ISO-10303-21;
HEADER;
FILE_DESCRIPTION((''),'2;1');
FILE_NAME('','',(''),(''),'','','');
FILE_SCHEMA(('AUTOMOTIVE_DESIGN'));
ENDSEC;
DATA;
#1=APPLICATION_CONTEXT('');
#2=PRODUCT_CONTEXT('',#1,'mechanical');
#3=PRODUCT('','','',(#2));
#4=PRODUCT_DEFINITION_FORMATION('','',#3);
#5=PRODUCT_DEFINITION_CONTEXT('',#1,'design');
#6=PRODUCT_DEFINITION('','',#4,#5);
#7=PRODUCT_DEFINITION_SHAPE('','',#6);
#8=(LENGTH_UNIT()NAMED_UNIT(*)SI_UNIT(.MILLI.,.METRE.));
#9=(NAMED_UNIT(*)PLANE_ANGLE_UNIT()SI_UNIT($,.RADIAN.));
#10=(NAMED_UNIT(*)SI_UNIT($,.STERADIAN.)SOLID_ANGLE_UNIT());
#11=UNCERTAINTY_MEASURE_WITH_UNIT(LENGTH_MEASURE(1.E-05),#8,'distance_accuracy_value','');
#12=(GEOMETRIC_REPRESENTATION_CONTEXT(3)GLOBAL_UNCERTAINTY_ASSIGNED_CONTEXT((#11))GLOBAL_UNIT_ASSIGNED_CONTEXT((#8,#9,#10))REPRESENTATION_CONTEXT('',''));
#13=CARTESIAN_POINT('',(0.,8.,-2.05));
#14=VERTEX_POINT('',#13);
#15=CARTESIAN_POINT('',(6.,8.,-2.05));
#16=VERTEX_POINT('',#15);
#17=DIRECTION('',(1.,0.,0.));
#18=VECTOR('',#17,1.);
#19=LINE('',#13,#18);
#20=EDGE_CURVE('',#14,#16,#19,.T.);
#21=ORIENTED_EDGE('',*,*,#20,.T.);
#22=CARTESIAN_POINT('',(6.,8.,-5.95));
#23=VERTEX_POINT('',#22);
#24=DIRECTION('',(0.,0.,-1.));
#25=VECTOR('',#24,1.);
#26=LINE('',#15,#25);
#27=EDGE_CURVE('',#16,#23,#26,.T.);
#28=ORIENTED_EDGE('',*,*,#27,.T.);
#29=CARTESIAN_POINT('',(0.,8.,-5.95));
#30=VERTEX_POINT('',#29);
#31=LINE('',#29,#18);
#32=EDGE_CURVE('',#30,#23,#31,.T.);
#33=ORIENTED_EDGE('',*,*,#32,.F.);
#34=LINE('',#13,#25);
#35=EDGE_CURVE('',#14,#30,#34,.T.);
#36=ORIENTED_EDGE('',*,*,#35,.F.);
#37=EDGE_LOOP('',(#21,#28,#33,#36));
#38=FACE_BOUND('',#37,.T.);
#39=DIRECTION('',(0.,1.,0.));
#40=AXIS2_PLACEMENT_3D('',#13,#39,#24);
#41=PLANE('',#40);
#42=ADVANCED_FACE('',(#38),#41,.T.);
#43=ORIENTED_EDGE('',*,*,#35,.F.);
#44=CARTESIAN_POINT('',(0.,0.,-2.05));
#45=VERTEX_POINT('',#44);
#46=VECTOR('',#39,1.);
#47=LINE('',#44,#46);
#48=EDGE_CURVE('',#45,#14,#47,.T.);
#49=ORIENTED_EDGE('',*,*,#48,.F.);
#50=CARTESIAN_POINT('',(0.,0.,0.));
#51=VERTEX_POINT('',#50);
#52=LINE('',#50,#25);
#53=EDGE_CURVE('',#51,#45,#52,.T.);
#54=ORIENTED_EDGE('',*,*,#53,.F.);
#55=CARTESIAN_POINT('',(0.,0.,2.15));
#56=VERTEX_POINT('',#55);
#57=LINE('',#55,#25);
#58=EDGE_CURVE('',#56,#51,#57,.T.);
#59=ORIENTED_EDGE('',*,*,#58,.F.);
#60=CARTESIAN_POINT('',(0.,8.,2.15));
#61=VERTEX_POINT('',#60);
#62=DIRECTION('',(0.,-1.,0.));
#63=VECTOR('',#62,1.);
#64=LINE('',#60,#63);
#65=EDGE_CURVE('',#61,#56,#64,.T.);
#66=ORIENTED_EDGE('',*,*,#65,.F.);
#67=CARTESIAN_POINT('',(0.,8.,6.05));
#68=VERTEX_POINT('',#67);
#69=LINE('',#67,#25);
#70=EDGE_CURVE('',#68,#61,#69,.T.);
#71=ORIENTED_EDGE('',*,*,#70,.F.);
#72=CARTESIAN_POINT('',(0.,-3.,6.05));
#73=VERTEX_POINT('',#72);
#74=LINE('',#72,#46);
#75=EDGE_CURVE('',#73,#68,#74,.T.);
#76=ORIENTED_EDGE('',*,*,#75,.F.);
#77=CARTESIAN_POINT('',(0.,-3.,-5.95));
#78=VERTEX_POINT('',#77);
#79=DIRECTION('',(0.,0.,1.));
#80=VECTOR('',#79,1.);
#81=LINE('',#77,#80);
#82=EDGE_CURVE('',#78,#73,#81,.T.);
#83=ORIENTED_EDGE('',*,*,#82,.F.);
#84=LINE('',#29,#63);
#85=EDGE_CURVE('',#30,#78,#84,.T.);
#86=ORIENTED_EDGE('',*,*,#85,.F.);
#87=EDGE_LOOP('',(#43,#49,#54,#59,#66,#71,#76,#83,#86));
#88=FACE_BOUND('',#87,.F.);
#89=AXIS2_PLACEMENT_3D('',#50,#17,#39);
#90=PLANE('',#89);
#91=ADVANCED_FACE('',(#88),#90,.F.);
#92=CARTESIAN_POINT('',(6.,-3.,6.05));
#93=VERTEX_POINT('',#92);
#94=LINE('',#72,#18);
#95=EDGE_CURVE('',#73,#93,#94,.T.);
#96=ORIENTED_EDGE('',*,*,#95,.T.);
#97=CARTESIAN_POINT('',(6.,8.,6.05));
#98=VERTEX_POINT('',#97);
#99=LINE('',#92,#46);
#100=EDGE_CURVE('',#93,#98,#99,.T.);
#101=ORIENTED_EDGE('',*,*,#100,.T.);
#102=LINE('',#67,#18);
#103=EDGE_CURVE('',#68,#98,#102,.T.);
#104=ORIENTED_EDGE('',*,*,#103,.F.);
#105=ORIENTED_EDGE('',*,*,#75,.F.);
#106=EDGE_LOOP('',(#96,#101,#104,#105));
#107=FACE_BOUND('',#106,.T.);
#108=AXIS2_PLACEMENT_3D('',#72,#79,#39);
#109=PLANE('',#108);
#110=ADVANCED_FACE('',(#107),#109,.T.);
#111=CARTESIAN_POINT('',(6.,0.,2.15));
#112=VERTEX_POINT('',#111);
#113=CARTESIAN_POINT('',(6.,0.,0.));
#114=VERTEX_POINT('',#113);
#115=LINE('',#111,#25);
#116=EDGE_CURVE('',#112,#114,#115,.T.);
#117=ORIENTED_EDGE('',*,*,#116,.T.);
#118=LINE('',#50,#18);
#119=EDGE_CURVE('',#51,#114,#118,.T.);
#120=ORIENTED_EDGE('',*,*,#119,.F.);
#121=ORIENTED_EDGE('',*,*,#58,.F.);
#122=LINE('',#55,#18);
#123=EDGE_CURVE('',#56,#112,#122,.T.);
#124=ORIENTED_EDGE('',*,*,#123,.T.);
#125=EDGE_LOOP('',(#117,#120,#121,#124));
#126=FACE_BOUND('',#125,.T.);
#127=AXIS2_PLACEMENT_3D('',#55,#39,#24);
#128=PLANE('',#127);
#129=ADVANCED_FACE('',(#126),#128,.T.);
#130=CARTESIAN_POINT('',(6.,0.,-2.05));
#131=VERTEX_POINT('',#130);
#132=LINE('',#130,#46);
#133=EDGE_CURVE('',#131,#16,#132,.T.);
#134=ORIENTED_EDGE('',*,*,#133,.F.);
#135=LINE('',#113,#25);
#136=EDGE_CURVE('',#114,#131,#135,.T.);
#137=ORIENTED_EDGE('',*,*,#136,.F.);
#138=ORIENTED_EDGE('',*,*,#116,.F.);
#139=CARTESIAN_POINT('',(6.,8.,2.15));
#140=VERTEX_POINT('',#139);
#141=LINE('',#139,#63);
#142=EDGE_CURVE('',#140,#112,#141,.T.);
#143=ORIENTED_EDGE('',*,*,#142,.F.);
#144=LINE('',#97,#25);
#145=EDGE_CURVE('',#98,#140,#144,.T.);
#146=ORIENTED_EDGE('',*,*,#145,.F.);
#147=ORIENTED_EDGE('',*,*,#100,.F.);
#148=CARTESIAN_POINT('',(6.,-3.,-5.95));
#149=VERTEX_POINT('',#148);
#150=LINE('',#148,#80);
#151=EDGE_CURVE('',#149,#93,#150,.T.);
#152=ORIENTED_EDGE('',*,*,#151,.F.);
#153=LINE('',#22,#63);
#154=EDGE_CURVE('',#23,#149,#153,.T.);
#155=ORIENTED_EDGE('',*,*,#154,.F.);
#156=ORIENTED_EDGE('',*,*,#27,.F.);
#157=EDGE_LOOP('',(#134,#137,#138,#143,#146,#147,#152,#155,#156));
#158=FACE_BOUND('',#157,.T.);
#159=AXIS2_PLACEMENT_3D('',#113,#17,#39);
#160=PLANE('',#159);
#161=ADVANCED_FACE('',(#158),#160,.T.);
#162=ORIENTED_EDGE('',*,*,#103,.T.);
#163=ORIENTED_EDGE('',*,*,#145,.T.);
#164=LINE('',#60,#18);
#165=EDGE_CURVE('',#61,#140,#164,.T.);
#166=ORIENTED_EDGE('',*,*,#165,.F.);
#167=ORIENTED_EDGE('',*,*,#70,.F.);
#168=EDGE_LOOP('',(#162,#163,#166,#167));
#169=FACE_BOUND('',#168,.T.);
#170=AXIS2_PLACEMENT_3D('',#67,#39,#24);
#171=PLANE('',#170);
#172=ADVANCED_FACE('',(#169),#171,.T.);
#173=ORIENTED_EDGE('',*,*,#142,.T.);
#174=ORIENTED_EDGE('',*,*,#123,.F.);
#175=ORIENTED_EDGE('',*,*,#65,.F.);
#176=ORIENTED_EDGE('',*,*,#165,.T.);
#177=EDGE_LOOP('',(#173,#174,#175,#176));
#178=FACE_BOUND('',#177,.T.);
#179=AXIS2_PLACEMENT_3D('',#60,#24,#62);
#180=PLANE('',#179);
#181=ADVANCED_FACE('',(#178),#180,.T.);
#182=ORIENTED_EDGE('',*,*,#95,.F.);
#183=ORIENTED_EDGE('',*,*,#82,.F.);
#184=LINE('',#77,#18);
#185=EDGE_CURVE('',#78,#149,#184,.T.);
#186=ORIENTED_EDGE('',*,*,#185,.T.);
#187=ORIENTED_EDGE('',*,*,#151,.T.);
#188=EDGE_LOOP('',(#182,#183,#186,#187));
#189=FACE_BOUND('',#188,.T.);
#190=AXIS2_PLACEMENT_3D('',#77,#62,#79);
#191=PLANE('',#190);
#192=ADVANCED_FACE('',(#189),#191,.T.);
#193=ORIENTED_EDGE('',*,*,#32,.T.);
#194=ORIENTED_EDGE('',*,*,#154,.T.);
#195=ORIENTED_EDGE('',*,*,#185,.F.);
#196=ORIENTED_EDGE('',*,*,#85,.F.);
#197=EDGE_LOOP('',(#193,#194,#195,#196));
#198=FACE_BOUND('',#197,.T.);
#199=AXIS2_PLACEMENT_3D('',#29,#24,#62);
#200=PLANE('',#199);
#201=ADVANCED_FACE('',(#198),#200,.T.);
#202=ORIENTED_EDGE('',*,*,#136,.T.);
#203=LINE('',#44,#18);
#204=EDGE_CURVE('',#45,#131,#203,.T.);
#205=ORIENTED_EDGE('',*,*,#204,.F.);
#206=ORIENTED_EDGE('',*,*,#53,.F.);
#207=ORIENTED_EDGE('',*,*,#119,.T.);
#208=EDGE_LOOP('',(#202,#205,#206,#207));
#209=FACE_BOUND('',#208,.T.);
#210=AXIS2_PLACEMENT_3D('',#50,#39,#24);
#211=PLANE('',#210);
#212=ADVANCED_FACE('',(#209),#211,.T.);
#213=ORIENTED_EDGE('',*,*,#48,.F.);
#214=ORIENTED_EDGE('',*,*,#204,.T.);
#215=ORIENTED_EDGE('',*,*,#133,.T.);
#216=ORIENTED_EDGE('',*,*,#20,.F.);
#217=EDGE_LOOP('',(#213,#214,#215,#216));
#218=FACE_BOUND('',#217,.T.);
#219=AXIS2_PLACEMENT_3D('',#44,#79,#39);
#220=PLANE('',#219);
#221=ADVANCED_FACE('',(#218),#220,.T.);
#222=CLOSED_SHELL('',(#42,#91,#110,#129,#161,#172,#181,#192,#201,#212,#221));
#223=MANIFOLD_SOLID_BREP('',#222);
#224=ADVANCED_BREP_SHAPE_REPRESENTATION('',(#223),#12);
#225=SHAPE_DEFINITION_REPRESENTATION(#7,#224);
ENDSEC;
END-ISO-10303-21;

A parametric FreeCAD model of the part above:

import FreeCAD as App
import Part
import Sketcher
from FreeCAD import Vector

doc = App.newDocument("Part")
params = doc.addObject("Spreadsheet::Sheet", "Params")
for row, (alias, value) in enumerate([
    ("sketch1_width", "8 mm"),
    ("sketch1_width2", "11 mm"),
    ("sketch1_height", "12 mm"),
    ("sketch1_height2", "3.9 mm"),
    ("pad1_length", "6 mm"),
], start=1):
    params.set(f"A{row}", alias)
    params.set(f"B{row}", "=" + value)
    params.setAlias(f"B{row}", alias)

body = doc.addObject("PartDesign::Body", "Body")

sketch1 = body.newObject("Sketcher::SketchObject", "Sketch")
sketch1.AttachmentSupport = (doc.getObject("YZ_Plane"), [""])
sketch1.MapMode = "FlatFace"
sketch1.addGeometry(Part.LineSegment(Vector(0, -2.05, 0), Vector(0, 2.15, 0)), False)
sketch1.addGeometry(Part.LineSegment(Vector(0, 2.15, 0), Vector(8, 2.15, 0)), False)
sketch1.addGeometry(Part.LineSegment(Vector(8, 2.15, 0), Vector(8, 6.05, 0)), False)
sketch1.addGeometry(Part.LineSegment(Vector(8, 6.05, 0), Vector(-3, 6.05, 0)), False)
sketch1.addGeometry(Part.LineSegment(Vector(-3, 6.05, 0), Vector(-3, -5.95, 0)), False)
sketch1.addGeometry(Part.LineSegment(Vector(-3, -5.95, 0), Vector(8, -5.95, 0)), False)
sketch1.addGeometry(Part.LineSegment(Vector(8, -5.95, 0), Vector(8, -2.05, 0)), False)
sketch1.addGeometry(Part.LineSegment(Vector(8, -2.05, 0), Vector(0, -2.05, 0)), False)
sketch1.addConstraint(Sketcher.Constraint("Coincident", 0, 2, 1, 1))
sketch1.addConstraint(Sketcher.Constraint("Coincident", 1, 2, 2, 1))
sketch1.addConstraint(Sketcher.Constraint("Coincident", 2, 2, 3, 1))
sketch1.addConstraint(Sketcher.Constraint("Coincident", 3, 2, 4, 1))
sketch1.addConstraint(Sketcher.Constraint("Coincident", 4, 2, 5, 1))
sketch1.addConstraint(Sketcher.Constraint("Coincident", 5, 2, 6, 1))
sketch1.addConstraint(Sketcher.Constraint("Coincident", 6, 2, 7, 1))
sketch1.addConstraint(Sketcher.Constraint("Coincident", 7, 2, 0, 1))
sketch1.addConstraint(Sketcher.Constraint("Vertical", 0))
sketch1.addConstraint(Sketcher.Constraint("Horizontal", 1))
sketch1.addConstraint(Sketcher.Constraint("Vertical", 2))
sketch1.addConstraint(Sketcher.Constraint("Horizontal", 3))
sketch1.addConstraint(Sketcher.Constraint("Vertical", 4))
sketch1.addConstraint(Sketcher.Constraint("Horizontal", 5))
sketch1.addConstraint(Sketcher.Constraint("Vertical", 6))
sketch1.addConstraint(Sketcher.Constraint("Horizontal", 7))
sketch1.addConstraint(Sketcher.Constraint("PointOnObject", 0, 2, -2))
sketch1.addConstraint(Sketcher.Constraint("Vertical", 2, 2, 5, 2))
sketch1.addConstraint(Sketcher.Constraint("Equal", 2, 6))
sketch1.addConstraint(Sketcher.Constraint("DistanceX", 1, 1, 1, 2, 8.0))
sketch1.addConstraint(Sketcher.Constraint("DistanceX", 3, 2, 3, 1, 11.0))
sketch1.addConstraint(Sketcher.Constraint("DistanceY", 4, 2, 4, 1, 12.0))
sketch1.addConstraint(Sketcher.Constraint("DistanceY", 2, 1, 2, 2, 3.9))
sketch1.addConstraint(Sketcher.Constraint("DistanceY", 6, 2, -1, 1, 2.05))
sketch1.setExpression("Constraints[19]", "Params.sketch1_width")
sketch1.setExpression("Constraints[20]", "Params.sketch1_width2")
sketch1.setExpression("Constraints[21]", "Params.sketch1_height")
sketch1.setExpression("Constraints[22]", "Params.sketch1_height2")
pad1 = body.newObject("PartDesign::Pad", "Pad")
pad1.Profile = sketch1
pad1.setExpression("Length", "Params.pad1_length")

doc.recompute()
